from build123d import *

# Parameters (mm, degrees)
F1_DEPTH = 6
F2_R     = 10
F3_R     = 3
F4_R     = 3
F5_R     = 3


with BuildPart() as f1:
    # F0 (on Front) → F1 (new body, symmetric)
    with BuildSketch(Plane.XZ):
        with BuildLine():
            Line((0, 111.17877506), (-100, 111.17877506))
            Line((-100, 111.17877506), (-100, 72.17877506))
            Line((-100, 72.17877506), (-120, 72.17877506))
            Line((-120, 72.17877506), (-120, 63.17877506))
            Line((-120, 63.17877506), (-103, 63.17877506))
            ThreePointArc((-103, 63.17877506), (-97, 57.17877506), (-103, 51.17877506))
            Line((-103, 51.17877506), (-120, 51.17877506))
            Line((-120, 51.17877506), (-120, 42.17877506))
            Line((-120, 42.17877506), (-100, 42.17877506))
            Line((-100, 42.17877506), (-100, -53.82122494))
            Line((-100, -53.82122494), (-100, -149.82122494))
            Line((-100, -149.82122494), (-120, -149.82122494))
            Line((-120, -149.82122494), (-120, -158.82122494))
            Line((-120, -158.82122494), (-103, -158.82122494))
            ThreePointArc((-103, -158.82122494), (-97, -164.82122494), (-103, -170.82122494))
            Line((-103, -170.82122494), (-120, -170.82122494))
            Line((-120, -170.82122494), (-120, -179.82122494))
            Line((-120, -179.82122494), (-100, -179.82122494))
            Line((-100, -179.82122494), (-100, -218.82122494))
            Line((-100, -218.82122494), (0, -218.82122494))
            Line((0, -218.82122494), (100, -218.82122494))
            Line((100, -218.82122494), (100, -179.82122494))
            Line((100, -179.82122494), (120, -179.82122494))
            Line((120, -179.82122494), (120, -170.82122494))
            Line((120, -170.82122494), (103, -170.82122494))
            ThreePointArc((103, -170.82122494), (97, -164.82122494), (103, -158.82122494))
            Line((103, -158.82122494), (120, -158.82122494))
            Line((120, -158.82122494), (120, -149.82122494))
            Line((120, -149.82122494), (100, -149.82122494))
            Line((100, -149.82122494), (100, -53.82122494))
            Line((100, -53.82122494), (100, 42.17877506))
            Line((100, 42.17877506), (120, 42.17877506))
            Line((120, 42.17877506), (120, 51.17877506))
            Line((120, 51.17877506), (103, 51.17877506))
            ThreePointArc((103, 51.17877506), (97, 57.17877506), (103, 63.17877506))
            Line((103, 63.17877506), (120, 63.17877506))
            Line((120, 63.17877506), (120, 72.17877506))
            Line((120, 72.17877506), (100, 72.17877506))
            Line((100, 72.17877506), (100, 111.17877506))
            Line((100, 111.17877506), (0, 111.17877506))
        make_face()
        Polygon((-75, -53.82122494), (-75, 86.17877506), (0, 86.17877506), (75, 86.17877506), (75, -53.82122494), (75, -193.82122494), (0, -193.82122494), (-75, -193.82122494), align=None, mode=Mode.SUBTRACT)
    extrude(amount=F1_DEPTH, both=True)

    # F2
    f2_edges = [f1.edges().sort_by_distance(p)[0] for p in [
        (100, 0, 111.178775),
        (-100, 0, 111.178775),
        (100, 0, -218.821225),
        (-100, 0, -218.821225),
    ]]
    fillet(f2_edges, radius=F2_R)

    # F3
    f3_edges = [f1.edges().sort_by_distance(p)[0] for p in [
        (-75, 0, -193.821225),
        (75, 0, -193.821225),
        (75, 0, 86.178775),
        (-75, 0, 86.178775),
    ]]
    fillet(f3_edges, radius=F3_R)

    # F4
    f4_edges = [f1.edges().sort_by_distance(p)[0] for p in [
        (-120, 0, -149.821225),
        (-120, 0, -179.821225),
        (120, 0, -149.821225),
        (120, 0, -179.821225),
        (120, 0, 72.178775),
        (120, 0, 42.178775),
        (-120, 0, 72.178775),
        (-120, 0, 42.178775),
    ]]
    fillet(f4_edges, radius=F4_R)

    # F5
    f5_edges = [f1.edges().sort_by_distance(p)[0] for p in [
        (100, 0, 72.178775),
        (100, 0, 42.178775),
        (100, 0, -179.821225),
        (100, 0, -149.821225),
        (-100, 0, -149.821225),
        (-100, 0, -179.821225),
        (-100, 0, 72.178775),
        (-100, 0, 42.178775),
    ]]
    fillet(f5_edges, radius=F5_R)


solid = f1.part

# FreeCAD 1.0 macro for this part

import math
import FreeCAD as App
import Part
import Sketcher

V = App.Vector
Q = App.Units.Quantity


def edges_at(feature, points):
    """Names of the edges that pass closest to the given points."""
    edges = feature.Shape.Edges
    near = lambda p: min(range(len(edges)), key=lambda i: edges[i].distToShape(Part.Vertex(*p))[0])
    return sorted({f"Edge{near(p) + 1}" for p in points})


def add_polygon(sketch, points):
    """Adds a closed chain of lines whose ends are joined by coincident constraints."""
    first, n = sketch.GeometryCount, len(points)
    for a, b in zip(points, points[1:] + points[:1]):
        sketch.addGeometry(Part.LineSegment(App.Vector(*a, 0), App.Vector(*b, 0)), False)
    for i in range(n):
        sketch.addConstraint(Sketcher.Constraint("Coincident", first + i, 2, first + (i + 1) % n, 1))

doc = App.newDocument("Part")
body = doc.addObject("PartDesign::Body", "Body")

# Sketch on XZ plane
sketch1 = doc.addObject("Sketcher::SketchObject", "Sketch")
body.addObject(sketch1)
sketch1.AttachmentSupport = (doc.XZ_Plane, [""])
sketch1.MapMode = "FlatFace"
sketch1.addGeometry(Part.LineSegment(V(-100, 111, 0), V(-100, 72, 0)), False)  # 0
sketch1.addGeometry(Part.LineSegment(V(-100, 72, 0), V(-120, 72, 0)), False)  # 1
sketch1.addGeometry(Part.LineSegment(V(-120, 72, 0), V(-120, 63, 0)), False)  # 2
sketch1.addGeometry(Part.LineSegment(V(-120, 63, 0), V(-103, 63, 0)), False)  # 3
sketch1.addGeometry(Part.ArcOfCircle(Part.Circle(V(-103, 57, 0), V(0, 0, 1), 6), math.radians(-90), math.radians(90)), False)  # 4
sketch1.addGeometry(Part.LineSegment(V(-103, 51, 0), V(-120, 51, 0)), False)  # 5
sketch1.addGeometry(Part.LineSegment(V(-120, 51, 0), V(-120, 42, 0)), False)  # 6
sketch1.addGeometry(Part.LineSegment(V(-120, 42, 0), V(-100, 42, 0)), False)  # 7
sketch1.addGeometry(Part.LineSegment(V(-100, 42, 0), V(-100, -150, 0)), False)  # 8
sketch1.addGeometry(Part.LineSegment(V(-100, -150, 0), V(-120, -150, 0)), False)  # 9
sketch1.addGeometry(Part.LineSegment(V(-120, -150, 0), V(-120, -159, 0)), False)  # 10
sketch1.addGeometry(Part.LineSegment(V(-120, -159, 0), V(-103, -159, 0)), False)  # 11
sketch1.addGeometry(Part.ArcOfCircle(Part.Circle(V(-103, -165, 0), V(0, 0, 1), 6), math.radians(-90), math.radians(90)), False)  # 12
sketch1.addGeometry(Part.LineSegment(V(-103, -171, 0), V(-120, -171, 0)), False)  # 13
sketch1.addGeometry(Part.LineSegment(V(-120, -171, 0), V(-120, -180, 0)), False)  # 14
sketch1.addGeometry(Part.LineSegment(V(-120, -180, 0), V(-100, -180, 0)), False)  # 15
sketch1.addGeometry(Part.LineSegment(V(-100, -180, 0), V(-100, -219, 0)), False)  # 16
sketch1.addGeometry(Part.LineSegment(V(-100, -219, 0), V(100, -219, 0)), False)  # 17
sketch1.addGeometry(Part.LineSegment(V(100, -219, 0), V(100, -180, 0)), False)  # 18
sketch1.addGeometry(Part.LineSegment(V(100, -180, 0), V(120, -180, 0)), False)  # 19
sketch1.addGeometry(Part.LineSegment(V(120, -180, 0), V(120, -171, 0)), False)  # 20
sketch1.addGeometry(Part.LineSegment(V(120, -171, 0), V(103, -171, 0)), False)  # 21
sketch1.addGeometry(Part.ArcOfCircle(Part.Circle(V(103, -165, 0), V(0, 0, 1), 6), math.radians(90), math.radians(270)), False)  # 22
sketch1.addGeometry(Part.LineSegment(V(103, -159, 0), V(120, -159, 0)), False)  # 23
sketch1.addGeometry(Part.LineSegment(V(120, -159, 0), V(120, -150, 0)), False)  # 24
sketch1.addGeometry(Part.LineSegment(V(120, -150, 0), V(100, -150, 0)), False)  # 25
sketch1.addGeometry(Part.LineSegment(V(100, -150, 0), V(100, 42, 0)), False)  # 26
sketch1.addGeometry(Part.LineSegment(V(100, 42, 0), V(120, 42, 0)), False)  # 27
sketch1.addGeometry(Part.LineSegment(V(120, 42, 0), V(120, 51, 0)), False)  # 28
sketch1.addGeometry(Part.LineSegment(V(120, 51, 0), V(103, 51, 0)), False)  # 29
sketch1.addGeometry(Part.ArcOfCircle(Part.Circle(V(103, 57, 0), V(0, 0, 1), 6), math.radians(90), math.radians(270)), False)  # 30
sketch1.addGeometry(Part.LineSegment(V(103, 63, 0), V(120, 63, 0)), False)  # 31
sketch1.addGeometry(Part.LineSegment(V(120, 63, 0), V(120, 72, 0)), False)  # 32
sketch1.addGeometry(Part.LineSegment(V(120, 72, 0), V(100, 72, 0)), False)  # 33
sketch1.addGeometry(Part.LineSegment(V(100, 72, 0), V(100, 111, 0)), False)  # 34
sketch1.addGeometry(Part.LineSegment(V(100, 111, 0), V(-100, 111, 0)), False)  # 35
add_polygon(sketch1, [(-75, -194), (-75, 86), (75, 86), (75, -194)])  # lines 36-39
sketch1.addConstraint([
    Sketcher.Constraint("Coincident", 0, 2, 1, 1),
    Sketcher.Constraint("Coincident", 1, 2, 2, 1),
    Sketcher.Constraint("Coincident", 2, 2, 3, 1),
    Sketcher.Constraint("Tangent", 3, 2, 4, 2),
    Sketcher.Constraint("Tangent", 4, 1, 5, 1),
    Sketcher.Constraint("Coincident", 5, 2, 6, 1),
    Sketcher.Constraint("Coincident", 6, 2, 7, 1),
    Sketcher.Constraint("Coincident", 7, 2, 8, 1),
    Sketcher.Constraint("Coincident", 8, 2, 9, 1),
    Sketcher.Constraint("Coincident", 9, 2, 10, 1),
    Sketcher.Constraint("Coincident", 10, 2, 11, 1),
    Sketcher.Constraint("Tangent", 11, 2, 12, 2),
    Sketcher.Constraint("Tangent", 12, 1, 13, 1),
    Sketcher.Constraint("Coincident", 13, 2, 14, 1),
    Sketcher.Constraint("Coincident", 14, 2, 15, 1),
    Sketcher.Constraint("Coincident", 15, 2, 16, 1),
    Sketcher.Constraint("Coincident", 16, 2, 17, 1),
    Sketcher.Constraint("Coincident", 17, 2, 18, 1),
    Sketcher.Constraint("Coincident", 18, 2, 19, 1),
    Sketcher.Constraint("Coincident", 19, 2, 20, 1),
    Sketcher.Constraint("Coincident", 20, 2, 21, 1),
    Sketcher.Constraint("Tangent", 21, 2, 22, 2),
    Sketcher.Constraint("Tangent", 22, 1, 23, 1),
    Sketcher.Constraint("Coincident", 23, 2, 24, 1),
    Sketcher.Constraint("Coincident", 24, 2, 25, 1),
    Sketcher.Constraint("Coincident", 25, 2, 26, 1),
    Sketcher.Constraint("Coincident", 26, 2, 27, 1),
    Sketcher.Constraint("Coincident", 27, 2, 28, 1),
    Sketcher.Constraint("Coincident", 28, 2, 29, 1),
    Sketcher.Constraint("Tangent", 29, 2, 30, 2),
    Sketcher.Constraint("Tangent", 30, 1, 31, 1),
    Sketcher.Constraint("Coincident", 31, 2, 32, 1),
    Sketcher.Constraint("Coincident", 32, 2, 33, 1),
    Sketcher.Constraint("Coincident", 33, 2, 34, 1),
    Sketcher.Constraint("Coincident", 34, 2, 35, 1),
    Sketcher.Constraint("Coincident", 35, 2, 0, 1),
    Sketcher.Constraint("Vertical", 0),
    Sketcher.Constraint("Horizontal", 1),
    Sketcher.Constraint("Vertical", 2),
    Sketcher.Constraint("Horizontal", 3),
    Sketcher.Constraint("Horizontal", 5),
    Sketcher.Constraint("Vertical", 6),
    Sketcher.Constraint("Horizontal", 7),
    Sketcher.Constraint("Vertical", 8),
    Sketcher.Constraint("Horizontal", 9),
    Sketcher.Constraint("Vertical", 10),
    Sketcher.Constraint("Horizontal", 11),
    Sketcher.Constraint("Horizontal", 13),
    Sketcher.Constraint("Vertical", 14),
    Sketcher.Constraint("Horizontal", 15),
    Sketcher.Constraint("Vertical", 16),
    Sketcher.Constraint("Horizontal", 17),
    Sketcher.Constraint("Vertical", 18),
    Sketcher.Constraint("Horizontal", 19),
    Sketcher.Constraint("Vertical", 20),
    Sketcher.Constraint("Horizontal", 21),
    Sketcher.Constraint("Horizontal", 23),
    Sketcher.Constraint("Vertical", 24),
    Sketcher.Constraint("Horizontal", 25),
    Sketcher.Constraint("Vertical", 26),
    Sketcher.Constraint("Horizontal", 27),
    Sketcher.Constraint("Vertical", 28),
    Sketcher.Constraint("Horizontal", 29),
    Sketcher.Constraint("Horizontal", 31),
    Sketcher.Constraint("Vertical", 32),
    Sketcher.Constraint("Horizontal", 33),
    Sketcher.Constraint("Vertical", 34),
    Sketcher.Constraint("Horizontal", 35),
    Sketcher.Constraint("Vertical", 36),
    Sketcher.Constraint("Horizontal", 37),
    Sketcher.Constraint("Vertical", 38),
    Sketcher.Constraint("Horizontal", 39),
    Sketcher.Constraint("Equal", 4, 12),
    Sketcher.Constraint("Equal", 12, 22),
    Sketcher.Constraint("Equal", 22, 30),
    Sketcher.Constraint("Symmetric", 12, 3, 22, 3, -2),
    Sketcher.Constraint("Symmetric", 4, 3, 30, 3, -2),
    Sketcher.Constraint("Symmetric", 15, 2, 18, 2, -2),
    Sketcher.Constraint("Symmetric", 9, 2, 24, 2, -2),
    Sketcher.Constraint("Symmetric", 7, 2, 26, 2, -2),
    Sketcher.Constraint("Symmetric", 1, 2, 32, 2, -2),
    Sketcher.Constraint("Vertical", 4, 3, 12, 3),
    Sketcher.Constraint("Vertical", 2, 2, 5, 2),
    Sketcher.Constraint("Vertical", 0, 2, 7, 2),
    Sketcher.Constraint("Vertical", 6, 2, 9, 2),
    Sketcher.Constraint("Vertical", 10, 2, 13, 2),
    Sketcher.Constraint("Vertical", 8, 2, 15, 2),
    Sketcher.Constraint("Vertical", 20, 2, 23, 2),
    Sketcher.Constraint("Vertical", 24, 2, 27, 2),
    Sketcher.Constraint("Vertical", 26, 2, 33, 2),
    Sketcher.Constraint("Equal", 2, 6),
    Sketcher.Constraint("Equal", 6, 10),
    Sketcher.Constraint("Equal", 10, 14),
    Sketcher.Constraint("Equal", 0, 16),
    Sketcher.Constraint("Radius", 4, Q("6 mm")),
    Sketcher.Constraint("DistanceX", 1, 2, 1, 1, Q("20 mm")),
    Sketcher.Constraint("DistanceX", 3, 1, 3, 2, Q("17 mm")),
    Sketcher.Constraint("DistanceX", 17, 1, 17, 2, Q("200 mm")),
    Sketcher.Constraint("DistanceX", 37, 1, 37, 2, Q("150 mm")),
    Sketcher.Constraint("DistanceY", 0, 2, 0, 1, Q("39 mm")),
    Sketcher.Constraint("DistanceY", 2, 2, 2, 1, Q("9 mm")),
    Sketcher.Constraint("DistanceY", 8, 2, 8, 1, Q("192 mm")),
    Sketcher.Constraint("DistanceY", 36, 1, 36, 2, Q("280 mm")),
    Sketcher.Constraint("DistanceX", 36, 2, -1, 1, Q("75 mm")),
    Sketcher.Constraint("DistanceY", 0, 2, 36, 2, Q("14 mm")),
    Sketcher.Constraint("DistanceY", -1, 1, 4, 3, Q("57.178775 mm")),
])
pad1 = doc.addObject("PartDesign::Pad", "Pad")
body.addObject(pad1)
pad1.Profile = sketch1
pad1.Length = 12
pad1.Midplane = True
doc.recompute()

fillet = doc.addObject("PartDesign::Fillet", "Fillet")
body.addObject(fillet)
fillet.Base = (pad1, edges_at(pad1, [
    (100, 0, 111.179),
    (-100, 0, 111.179),
    (100, 0, -218.821),
    (-100, 0, -218.821),
]))
fillet.Radius = 10
doc.recompute()

fillet2 = doc.addObject("PartDesign::Fillet", "Fillet001")
body.addObject(fillet2)
fillet2.Base = (fillet, edges_at(fillet, [
    (-75, 0, -193.821),
    (75, 0, -193.821),
    (75, 0, 86.179),
    (-75, 0, 86.179),
]))
fillet2.Radius = 3
doc.recompute()

fillet3 = doc.addObject("PartDesign::Fillet", "Fillet002")
body.addObject(fillet3)
fillet3.Base = (fillet2, edges_at(fillet2, [
    (-120, 0, -149.821),
    (-120, 0, -179.821),
    (120, 0, -149.821),
    (120, 0, -179.821),
    (120, 0, 72.179),
    (120, 0, 42.179),
    (-120, 0, 72.179),
    (-120, 0, 42.179),
]))
fillet3.Radius = 3
doc.recompute()

fillet4 = doc.addObject("PartDesign::Fillet", "Fillet003")
body.addObject(fillet4)
fillet4.Base = (fillet3, edges_at(fillet3, [
    (100, 0, 72.179),
    (100, 0, 42.179),
    (100, 0, -179.821),
    (100, 0, -149.821),
    (-100, 0, -149.821),
    (-100, 0, -179.821),
    (-100, 0, 72.179),
    (-100, 0, 42.179),
]))
fillet4.Radius = 3

doc.recompute()
